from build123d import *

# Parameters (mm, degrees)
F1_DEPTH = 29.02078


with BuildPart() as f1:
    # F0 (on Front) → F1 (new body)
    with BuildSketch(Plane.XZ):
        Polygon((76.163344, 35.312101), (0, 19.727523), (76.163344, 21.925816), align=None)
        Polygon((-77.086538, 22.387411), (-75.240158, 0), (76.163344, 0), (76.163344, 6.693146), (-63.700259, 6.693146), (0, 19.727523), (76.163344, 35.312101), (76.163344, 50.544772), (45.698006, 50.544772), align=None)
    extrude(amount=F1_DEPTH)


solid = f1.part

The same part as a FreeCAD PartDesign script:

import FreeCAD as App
import Part
import Sketcher

V = App.Vector


def add_polygon(sketch, points):
    """Adds a closed chain of lines whose ends are joined by coincident constraints."""
    first, n = sketch.GeometryCount, len(points)
    for a, b in zip(points, points[1:] + points[:1]):
        sketch.addGeometry(Part.LineSegment(App.Vector(*a, 0), App.Vector(*b, 0)), False)
    for i in range(n):
        sketch.addConstraint(Sketcher.Constraint("Coincident", first + i, 2, first + (i + 1) % n, 1))

doc = App.newDocument("Part")
params = doc.addObject("Spreadsheet::Sheet", "Params")
for row, (alias, value) in enumerate([
    ("pad1_length", "29.02078 mm"),
], start=1):
    params.set(f"A{row}", alias)
    params.set(f"B{row}", "=" + value)
    params.setAlias(f"B{row}", alias)

body = doc.addObject("PartDesign::Body", "Body")

# Sketch on XZ plane
sketch1 = doc.addObject("Sketcher::SketchObject", "Sketch")
body.addObject(sketch1)
sketch1.AttachmentSupport = (doc.XZ_Plane, [""])
sketch1.MapMode = "FlatFace"
add_polygon(sketch1, [(0, 19.727523), (76.163344, 21.925816), (76.163344, 50.544772), (45.698006, 50.544772), (-77.086538, 22.387411), (-75.240158, 0), (76.163344, 0), (76.163344, 6.693146), (-63.700259, 6.693146)])  # lines 0-8
sketch1.addConstraint(Sketcher.Constraint("Vertical", 1))
sketch1.addConstraint(Sketcher.Constraint("Horizontal", 2))
sketch1.addConstraint(Sketcher.Constraint("Horizontal", 5))
sketch1.addConstraint(Sketcher.Constraint("Vertical", 6))
sketch1.addConstraint(Sketcher.Constraint("Horizontal", 7))
sketch1.addConstraint(Sketcher.Constraint("PointOnObject", 4, 2, -1))
sketch1.addConstraint(Sketcher.Constraint("PointOnObject", 8, 2, -2))
sketch1.addConstraint(Sketcher.Constraint("Vertical", 1, 2, 5, 2))
sketch1.addConstraint(Sketcher.Constraint("DistanceX", 5, 1, 5, 2, 151.403502))
sketch1.addConstraint(Sketcher.Constraint("DistanceX", 4, 2, 7, 2, 11.539899))
sketch1.addConstraint(Sketcher.Constraint("Distance", 0, 76.195062))
sketch1.addConstraint(Sketcher.Constraint("Distance", 4, 22.463421))
sketch1.addConstraint(Sketcher.Constraint("DistanceX", 2, 2, 2, 1, 30.465338))
sketch1.addConstraint(Sketcher.Constraint("DistanceY", 1, 1, 1, 2, 28.618956))
sketch1.addConstraint(Sketcher.Constraint("DistanceY", 6, 1, 6, 2, 6.693146))
sketch1.addConstraint(Sketcher.Constraint("DistanceX", 3, 2, -1, 1, 77.086538))
sketch1.addConstraint(Sketcher.Constraint("DistanceX", 7, 2, -1, 1, 63.700259))
sketch1.addConstraint(Sketcher.Constraint("DistanceY", 3, 2, 2, 2, 28.157361))
pad1 = doc.addObject("PartDesign::Pad", "Pad")
body.addObject(pad1)
pad1.Profile = sketch1
pad1.setExpression("Length", "Params.pad1_length")

doc.recompute()
